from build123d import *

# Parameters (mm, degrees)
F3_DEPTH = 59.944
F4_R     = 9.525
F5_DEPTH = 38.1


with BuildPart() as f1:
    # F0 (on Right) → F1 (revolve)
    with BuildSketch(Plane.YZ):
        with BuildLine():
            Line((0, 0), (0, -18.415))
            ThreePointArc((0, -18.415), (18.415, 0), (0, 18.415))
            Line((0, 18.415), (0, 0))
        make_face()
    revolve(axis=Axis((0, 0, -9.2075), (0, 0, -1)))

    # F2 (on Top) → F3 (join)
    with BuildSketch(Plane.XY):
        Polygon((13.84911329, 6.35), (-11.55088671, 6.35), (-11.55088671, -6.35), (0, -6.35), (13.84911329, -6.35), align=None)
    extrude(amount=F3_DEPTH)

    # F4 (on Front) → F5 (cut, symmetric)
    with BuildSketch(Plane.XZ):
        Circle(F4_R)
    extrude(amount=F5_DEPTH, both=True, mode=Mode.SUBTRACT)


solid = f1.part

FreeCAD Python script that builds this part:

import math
import FreeCAD as App
import Part
import Sketcher
Q = App.Units.Quantity

doc = App.newDocument("Part")
body = doc.addObject("PartDesign::Body", "Body")

sketch1 = doc.addObject("Sketcher::SketchObject", "Sketch")
body.addObject(sketch1)
sketch1.AttachmentSupport = (doc.YZ_Plane, [""])
sketch1.MapMode = "FlatFace"
sketch1.addGeometry(Part.ArcOfCircle(Part.Circle(App.Vector(0, 0, 0), App.Vector(0, 0, 1), 18), math.radians(-90), math.radians(90)), False)
sketch1.addGeometry(Part.LineSegment(App.Vector(0, 18, 0), App.Vector(0, -18, 0)), False)
sketch1.addConstraint(Sketcher.Constraint("Coincident", 0, 1, 1, 2))
sketch1.addConstraint(Sketcher.Constraint("Coincident", 1, 1, 0, 2))
sketch1.addConstraint(Sketcher.Constraint("Vertical", 1))
sketch1.addConstraint(Sketcher.Constraint("Coincident", 0, 3, -1, 1))
sketch1.addConstraint(Sketcher.Constraint("PointOnObject", 0, 1, -2))
sketch1.addConstraint(Sketcher.Constraint("Radius", 0, Q("0.725 in")))
revolution = doc.addObject("PartDesign::Revolution", "Revolution")
body.addObject(revolution)
revolution.Profile = sketch1
revolution.ReferenceAxis = (sketch1, ["V_Axis"])
revolution.Angle = 360

sketch2 = doc.addObject("Sketcher::SketchObject", "Sketch001")
body.addObject(sketch2)
sketch2.AttachmentSupport = (doc.XY_Plane, [""])
sketch2.MapMode = "FlatFace"
sketch2.addGeometry(Part.LineSegment(App.Vector(14, 6, 0), App.Vector(-12, 6, 0)), False)
sketch2.addGeometry(Part.LineSegment(App.Vector(-12, 6, 0), App.Vector(-12, -6, 0)), False)
sketch2.addGeometry(Part.LineSegment(App.Vector(-12, -6, 0), App.Vector(14, -6, 0)), False)
sketch2.addGeometry(Part.LineSegment(App.Vector(14, -6, 0), App.Vector(14, 6, 0)), False)
sketch2.addConstraint(Sketcher.Constraint("Coincident", 0, 2, 1, 1))
sketch2.addConstraint(Sketcher.Constraint("Coincident", 1, 2, 2, 1))
sketch2.addConstraint(Sketcher.Constraint("Coincident", 2, 2, 3, 1))
sketch2.addConstraint(Sketcher.Constraint("Coincident", 3, 2, 0, 1))
sketch2.addConstraint(Sketcher.Constraint("Horizontal", 0))
sketch2.addConstraint(Sketcher.Constraint("Vertical", 1))
sketch2.addConstraint(Sketcher.Constraint("Horizontal", 2))
sketch2.addConstraint(Sketcher.Constraint("Vertical", 3))
sketch2.addConstraint(Sketcher.Constraint("DistanceX", 0, 2, 0, 1, Q("1 in")))
sketch2.addConstraint(Sketcher.Constraint("DistanceY", 1, 2, 1, 1, Q("0.5 in")))
sketch2.addConstraint(Sketcher.Constraint("DistanceY", -1, 1, 0, 2, Q("0.25 in")))
sketch2.addConstraint(Sketcher.Constraint("DistanceX", 0, 2, -1, 1, 11.550887))
pad1 = doc.addObject("PartDesign::Pad", "Pad")
body.addObject(pad1)
pad1.Profile = sketch2
pad1.Length = Q("2.36 in")

sketch3 = doc.addObject("Sketcher::SketchObject", "Sketch002")
body.addObject(sketch3)
sketch3.AttachmentSupport = (doc.XZ_Plane, [""])
sketch3.MapMode = "FlatFace"
sketch3.addGeometry(Part.Circle(App.Vector(0, 0, 0), App.Vector(0, 0, 1), 10), False)
sketch3.addConstraint(Sketcher.Constraint("Coincident", 0, 3, -1, 1))
sketch3.addConstraint(Sketcher.Constraint("Diameter", 0, Q("0.75 in")))
pocket1 = doc.addObject("PartDesign::Pocket", "Pocket")
body.addObject(pocket1)
pocket1.Profile = sketch3
pocket1.Length = Q("3 in")
pocket1.Midplane = True

doc.recompute()
